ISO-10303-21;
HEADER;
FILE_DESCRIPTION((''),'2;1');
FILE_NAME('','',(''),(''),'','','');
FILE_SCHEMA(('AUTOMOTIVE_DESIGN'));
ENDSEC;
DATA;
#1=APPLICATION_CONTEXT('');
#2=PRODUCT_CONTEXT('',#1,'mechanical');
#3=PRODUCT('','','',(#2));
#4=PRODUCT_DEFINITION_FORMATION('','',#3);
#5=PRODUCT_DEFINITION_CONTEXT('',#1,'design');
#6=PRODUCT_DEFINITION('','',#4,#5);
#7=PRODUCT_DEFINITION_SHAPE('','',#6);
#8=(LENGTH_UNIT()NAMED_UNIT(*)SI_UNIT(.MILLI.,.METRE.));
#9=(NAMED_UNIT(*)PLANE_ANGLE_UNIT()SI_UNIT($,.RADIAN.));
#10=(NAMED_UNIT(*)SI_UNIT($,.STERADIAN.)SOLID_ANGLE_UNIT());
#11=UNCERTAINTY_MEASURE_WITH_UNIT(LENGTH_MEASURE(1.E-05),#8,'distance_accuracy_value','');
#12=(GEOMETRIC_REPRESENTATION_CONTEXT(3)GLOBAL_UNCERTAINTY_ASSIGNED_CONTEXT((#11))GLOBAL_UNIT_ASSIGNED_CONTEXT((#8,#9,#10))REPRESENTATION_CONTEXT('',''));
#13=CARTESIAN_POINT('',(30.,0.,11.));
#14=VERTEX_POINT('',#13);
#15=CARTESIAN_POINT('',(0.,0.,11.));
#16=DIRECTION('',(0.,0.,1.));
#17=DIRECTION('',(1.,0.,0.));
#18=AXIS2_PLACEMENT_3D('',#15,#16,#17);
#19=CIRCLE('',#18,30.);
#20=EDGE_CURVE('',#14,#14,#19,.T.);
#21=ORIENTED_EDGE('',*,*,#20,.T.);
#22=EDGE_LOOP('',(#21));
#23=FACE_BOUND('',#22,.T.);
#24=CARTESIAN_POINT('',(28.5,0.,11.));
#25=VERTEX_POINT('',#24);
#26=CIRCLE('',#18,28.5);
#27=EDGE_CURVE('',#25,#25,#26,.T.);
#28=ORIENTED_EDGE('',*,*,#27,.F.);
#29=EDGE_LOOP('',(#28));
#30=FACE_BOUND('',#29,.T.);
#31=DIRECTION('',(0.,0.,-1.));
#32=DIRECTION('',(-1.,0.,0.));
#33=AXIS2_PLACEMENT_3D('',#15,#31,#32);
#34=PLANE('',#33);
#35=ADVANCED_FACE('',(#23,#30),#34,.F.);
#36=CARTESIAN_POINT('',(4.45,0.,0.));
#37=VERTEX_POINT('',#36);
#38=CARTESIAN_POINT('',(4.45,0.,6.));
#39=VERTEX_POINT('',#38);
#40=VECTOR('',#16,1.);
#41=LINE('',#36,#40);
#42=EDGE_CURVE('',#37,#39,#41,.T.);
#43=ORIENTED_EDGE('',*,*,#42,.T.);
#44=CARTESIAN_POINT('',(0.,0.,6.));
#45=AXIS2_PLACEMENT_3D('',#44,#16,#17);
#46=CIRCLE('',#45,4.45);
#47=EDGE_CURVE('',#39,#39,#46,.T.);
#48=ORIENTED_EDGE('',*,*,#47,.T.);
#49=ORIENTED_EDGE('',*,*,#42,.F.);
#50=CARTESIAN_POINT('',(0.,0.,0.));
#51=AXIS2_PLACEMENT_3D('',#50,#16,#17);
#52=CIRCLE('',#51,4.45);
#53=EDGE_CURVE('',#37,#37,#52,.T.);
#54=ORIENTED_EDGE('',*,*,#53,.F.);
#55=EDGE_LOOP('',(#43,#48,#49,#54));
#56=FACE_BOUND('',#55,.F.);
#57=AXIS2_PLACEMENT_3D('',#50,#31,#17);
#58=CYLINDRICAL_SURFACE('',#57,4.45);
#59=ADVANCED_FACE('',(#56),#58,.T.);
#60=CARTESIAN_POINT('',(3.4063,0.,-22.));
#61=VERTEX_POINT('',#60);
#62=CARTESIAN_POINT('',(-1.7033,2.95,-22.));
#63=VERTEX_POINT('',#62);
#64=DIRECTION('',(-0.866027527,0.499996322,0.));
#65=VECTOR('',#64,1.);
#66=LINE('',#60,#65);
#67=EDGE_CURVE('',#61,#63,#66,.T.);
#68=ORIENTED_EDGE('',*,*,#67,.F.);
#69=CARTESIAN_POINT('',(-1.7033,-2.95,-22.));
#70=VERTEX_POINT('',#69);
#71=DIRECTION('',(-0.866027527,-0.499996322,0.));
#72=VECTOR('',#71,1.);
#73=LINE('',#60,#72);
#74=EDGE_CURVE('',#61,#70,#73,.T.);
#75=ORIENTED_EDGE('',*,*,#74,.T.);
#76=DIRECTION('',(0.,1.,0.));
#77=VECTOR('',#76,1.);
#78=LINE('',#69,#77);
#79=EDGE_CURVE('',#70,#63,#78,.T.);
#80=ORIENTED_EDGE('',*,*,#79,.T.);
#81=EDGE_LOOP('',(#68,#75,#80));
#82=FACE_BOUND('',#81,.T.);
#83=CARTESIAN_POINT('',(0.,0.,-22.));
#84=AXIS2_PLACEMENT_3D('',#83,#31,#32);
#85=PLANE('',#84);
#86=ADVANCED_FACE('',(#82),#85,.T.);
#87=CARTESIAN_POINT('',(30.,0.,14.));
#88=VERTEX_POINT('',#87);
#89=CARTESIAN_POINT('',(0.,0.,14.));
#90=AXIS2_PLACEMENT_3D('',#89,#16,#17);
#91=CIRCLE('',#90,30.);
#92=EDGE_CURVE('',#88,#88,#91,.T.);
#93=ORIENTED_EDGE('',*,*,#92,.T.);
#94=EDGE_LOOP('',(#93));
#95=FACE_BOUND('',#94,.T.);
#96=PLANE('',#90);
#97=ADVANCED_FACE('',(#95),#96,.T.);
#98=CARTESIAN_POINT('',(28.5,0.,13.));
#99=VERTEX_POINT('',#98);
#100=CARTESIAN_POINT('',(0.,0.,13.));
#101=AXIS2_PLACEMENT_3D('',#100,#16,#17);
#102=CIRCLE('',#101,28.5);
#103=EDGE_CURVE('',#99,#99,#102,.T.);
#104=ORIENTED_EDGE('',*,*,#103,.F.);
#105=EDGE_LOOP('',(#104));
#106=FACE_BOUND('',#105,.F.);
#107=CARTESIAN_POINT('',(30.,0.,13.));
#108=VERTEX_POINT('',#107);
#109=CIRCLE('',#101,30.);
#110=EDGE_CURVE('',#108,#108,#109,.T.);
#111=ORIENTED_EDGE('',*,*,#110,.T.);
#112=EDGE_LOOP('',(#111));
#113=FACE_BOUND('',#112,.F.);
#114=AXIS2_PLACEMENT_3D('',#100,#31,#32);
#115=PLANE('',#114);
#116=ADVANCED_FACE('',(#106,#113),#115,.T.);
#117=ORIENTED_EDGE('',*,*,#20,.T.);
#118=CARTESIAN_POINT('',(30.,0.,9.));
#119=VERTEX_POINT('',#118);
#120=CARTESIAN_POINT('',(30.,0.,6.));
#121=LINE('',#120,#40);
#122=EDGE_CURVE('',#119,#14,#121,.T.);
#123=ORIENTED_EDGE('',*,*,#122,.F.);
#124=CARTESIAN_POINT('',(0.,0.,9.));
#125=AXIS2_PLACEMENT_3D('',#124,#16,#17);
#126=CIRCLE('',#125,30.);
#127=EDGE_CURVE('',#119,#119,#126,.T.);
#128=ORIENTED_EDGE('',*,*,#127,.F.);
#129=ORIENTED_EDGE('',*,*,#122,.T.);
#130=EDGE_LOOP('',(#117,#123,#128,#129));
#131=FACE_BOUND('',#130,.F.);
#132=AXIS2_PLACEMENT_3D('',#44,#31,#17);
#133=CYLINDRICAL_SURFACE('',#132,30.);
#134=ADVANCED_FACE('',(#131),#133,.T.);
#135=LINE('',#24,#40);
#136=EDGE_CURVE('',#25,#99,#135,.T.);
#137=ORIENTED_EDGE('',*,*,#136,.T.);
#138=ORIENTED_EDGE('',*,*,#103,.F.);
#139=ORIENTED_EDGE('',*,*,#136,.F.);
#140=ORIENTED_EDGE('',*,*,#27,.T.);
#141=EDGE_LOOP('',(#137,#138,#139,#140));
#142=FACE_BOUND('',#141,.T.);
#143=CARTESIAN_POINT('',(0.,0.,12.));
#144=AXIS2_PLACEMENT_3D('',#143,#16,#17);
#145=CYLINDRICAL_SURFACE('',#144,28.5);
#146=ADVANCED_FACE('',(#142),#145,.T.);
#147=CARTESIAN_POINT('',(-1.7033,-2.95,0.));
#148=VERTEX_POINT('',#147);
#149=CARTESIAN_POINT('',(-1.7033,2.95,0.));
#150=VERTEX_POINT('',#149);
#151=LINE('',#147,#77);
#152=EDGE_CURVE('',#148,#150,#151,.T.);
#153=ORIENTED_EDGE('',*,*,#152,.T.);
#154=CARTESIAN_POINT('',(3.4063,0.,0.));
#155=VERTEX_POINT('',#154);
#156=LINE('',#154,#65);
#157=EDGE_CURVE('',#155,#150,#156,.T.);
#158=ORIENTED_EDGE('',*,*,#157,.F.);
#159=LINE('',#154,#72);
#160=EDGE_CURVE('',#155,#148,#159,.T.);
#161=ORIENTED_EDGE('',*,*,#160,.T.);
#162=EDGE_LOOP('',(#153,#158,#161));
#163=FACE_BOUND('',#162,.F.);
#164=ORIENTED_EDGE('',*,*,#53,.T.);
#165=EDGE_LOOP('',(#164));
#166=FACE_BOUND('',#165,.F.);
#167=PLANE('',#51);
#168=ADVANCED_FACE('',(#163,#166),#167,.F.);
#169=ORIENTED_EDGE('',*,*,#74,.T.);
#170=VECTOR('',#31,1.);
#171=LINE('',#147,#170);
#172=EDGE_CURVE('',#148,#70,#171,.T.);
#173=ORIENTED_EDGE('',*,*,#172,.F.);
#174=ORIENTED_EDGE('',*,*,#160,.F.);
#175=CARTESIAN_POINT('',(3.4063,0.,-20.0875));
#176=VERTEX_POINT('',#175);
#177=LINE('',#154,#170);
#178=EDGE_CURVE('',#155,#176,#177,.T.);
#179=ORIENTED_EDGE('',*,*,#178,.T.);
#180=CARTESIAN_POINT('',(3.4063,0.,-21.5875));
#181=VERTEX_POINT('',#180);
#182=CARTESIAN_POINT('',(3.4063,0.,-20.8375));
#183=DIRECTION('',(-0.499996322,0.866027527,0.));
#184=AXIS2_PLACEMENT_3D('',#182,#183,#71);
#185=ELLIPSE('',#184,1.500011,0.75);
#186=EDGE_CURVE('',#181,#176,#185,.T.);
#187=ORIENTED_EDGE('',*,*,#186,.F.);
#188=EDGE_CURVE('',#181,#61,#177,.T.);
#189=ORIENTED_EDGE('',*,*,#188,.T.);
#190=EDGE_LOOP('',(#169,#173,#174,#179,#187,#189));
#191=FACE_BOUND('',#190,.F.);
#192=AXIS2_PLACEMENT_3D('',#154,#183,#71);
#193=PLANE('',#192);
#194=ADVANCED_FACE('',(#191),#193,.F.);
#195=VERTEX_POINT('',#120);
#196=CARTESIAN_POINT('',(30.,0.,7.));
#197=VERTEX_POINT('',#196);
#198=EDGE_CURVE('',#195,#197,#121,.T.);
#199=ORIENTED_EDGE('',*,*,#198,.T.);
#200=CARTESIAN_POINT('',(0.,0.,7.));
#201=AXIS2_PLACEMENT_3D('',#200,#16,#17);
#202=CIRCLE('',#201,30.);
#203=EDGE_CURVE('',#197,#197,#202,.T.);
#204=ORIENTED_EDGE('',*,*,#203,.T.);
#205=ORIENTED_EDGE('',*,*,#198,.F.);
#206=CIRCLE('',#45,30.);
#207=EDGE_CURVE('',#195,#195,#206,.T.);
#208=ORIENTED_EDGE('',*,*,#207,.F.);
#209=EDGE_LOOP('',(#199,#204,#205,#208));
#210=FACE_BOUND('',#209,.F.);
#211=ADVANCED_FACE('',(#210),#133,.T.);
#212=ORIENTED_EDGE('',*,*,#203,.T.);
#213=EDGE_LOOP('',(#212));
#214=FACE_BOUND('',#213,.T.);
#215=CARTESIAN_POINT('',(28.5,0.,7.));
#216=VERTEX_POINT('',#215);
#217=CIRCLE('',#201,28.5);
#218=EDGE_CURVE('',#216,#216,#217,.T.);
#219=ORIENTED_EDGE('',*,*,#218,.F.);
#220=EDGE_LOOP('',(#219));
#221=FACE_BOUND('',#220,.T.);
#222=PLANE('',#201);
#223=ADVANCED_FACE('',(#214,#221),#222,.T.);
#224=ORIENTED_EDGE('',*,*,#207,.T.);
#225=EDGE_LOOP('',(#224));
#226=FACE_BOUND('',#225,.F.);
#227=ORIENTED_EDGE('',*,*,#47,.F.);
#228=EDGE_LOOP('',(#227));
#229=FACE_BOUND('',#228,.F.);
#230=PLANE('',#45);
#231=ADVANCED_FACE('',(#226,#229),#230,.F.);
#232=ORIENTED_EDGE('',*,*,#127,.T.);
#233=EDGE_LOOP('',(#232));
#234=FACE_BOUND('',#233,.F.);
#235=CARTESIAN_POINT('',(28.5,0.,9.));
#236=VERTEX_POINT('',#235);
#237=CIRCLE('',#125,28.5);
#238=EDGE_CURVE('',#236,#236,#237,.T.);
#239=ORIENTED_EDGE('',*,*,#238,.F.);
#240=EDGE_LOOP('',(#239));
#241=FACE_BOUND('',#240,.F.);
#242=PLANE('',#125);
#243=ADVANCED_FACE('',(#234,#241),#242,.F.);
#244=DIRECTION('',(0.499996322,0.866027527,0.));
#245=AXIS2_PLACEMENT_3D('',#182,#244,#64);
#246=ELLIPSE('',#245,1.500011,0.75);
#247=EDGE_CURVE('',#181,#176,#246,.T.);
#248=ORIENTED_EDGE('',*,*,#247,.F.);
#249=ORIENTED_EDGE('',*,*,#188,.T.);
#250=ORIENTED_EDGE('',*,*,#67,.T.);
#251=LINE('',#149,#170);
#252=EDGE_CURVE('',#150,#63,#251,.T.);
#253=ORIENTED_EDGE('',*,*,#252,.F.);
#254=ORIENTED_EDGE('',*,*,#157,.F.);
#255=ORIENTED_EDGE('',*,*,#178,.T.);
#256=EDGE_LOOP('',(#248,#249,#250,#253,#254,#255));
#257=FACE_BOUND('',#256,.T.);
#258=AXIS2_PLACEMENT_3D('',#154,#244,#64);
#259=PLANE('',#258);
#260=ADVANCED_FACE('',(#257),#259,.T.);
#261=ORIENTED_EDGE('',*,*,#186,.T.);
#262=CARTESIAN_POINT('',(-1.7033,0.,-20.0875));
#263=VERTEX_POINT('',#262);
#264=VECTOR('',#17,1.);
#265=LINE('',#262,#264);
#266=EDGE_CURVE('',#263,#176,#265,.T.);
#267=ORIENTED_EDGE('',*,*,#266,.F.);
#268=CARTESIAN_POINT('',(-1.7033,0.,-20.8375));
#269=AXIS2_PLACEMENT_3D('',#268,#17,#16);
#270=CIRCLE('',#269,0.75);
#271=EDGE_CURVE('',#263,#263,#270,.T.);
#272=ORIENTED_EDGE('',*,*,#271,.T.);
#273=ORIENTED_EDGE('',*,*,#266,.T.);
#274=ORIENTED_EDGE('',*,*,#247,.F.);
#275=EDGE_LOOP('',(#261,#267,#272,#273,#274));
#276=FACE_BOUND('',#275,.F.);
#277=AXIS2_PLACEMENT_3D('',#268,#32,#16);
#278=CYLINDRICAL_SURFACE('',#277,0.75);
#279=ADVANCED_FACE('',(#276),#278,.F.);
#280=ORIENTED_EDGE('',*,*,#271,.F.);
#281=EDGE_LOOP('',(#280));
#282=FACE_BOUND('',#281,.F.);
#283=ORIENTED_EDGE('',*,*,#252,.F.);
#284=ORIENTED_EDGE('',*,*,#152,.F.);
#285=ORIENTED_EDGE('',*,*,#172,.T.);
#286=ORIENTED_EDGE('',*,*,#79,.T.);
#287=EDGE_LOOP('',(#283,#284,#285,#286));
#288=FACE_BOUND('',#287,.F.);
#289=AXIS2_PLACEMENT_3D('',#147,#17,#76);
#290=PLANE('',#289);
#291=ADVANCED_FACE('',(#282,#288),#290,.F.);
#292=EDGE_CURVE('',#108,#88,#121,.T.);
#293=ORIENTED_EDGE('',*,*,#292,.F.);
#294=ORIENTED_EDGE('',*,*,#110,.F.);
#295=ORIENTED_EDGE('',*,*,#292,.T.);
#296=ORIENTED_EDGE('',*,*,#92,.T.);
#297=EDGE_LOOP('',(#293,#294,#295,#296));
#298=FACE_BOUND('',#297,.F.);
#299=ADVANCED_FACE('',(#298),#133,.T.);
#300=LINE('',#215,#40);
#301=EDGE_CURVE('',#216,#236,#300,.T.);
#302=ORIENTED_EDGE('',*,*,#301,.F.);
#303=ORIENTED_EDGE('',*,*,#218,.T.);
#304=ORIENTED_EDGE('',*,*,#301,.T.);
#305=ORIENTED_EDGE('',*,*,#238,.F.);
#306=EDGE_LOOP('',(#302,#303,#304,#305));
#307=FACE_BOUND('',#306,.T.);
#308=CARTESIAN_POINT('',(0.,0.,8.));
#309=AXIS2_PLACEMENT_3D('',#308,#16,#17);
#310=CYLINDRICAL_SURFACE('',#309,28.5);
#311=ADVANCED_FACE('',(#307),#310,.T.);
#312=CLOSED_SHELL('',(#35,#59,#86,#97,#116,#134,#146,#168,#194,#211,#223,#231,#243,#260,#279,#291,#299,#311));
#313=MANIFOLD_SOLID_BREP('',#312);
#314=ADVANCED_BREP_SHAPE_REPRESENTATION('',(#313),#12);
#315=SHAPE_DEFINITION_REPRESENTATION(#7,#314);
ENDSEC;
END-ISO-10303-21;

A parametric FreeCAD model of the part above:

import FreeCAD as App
import Part
import Sketcher


def add_polygon(sketch, points):
    """Adds a closed chain of lines whose ends are joined by coincident constraints."""
    first, n = sketch.GeometryCount, len(points)
    for a, b in zip(points, points[1:] + points[:1]):
        sketch.addGeometry(Part.LineSegment(App.Vector(*a, 0), App.Vector(*b, 0)), False)
    for i in range(n):
        sketch.addConstraint(Sketcher.Constraint("Coincident", first + i, 2, first + (i + 1) % n, 1))

doc = App.newDocument("Part")
body = doc.addObject("PartDesign::Body", "Body")

sketch1 = body.newObject("Sketcher::SketchObject", "Sketch")
sketch1.AttachmentSupport = (doc.getObject("XY_Plane"), [""])
sketch1.MapMode = "FlatFace"
sketch1.addGeometry(Part.Circle(App.Vector(0, 0, 0), App.Vector(0, 0, 1), 4.45), False)
sketch1.addConstraint(Sketcher.Constraint("Coincident", 0, 3, -1, 1))
sketch1.addConstraint(Sketcher.Constraint("Diameter", 0, 8.9))
pad1 = body.newObject("PartDesign::Pad", "Pad")
pad1.Profile = sketch1
pad1.Length = 6

sketch2 = body.newObject("Sketcher::SketchObject", "Sketch001")
sketch2.AttachmentSupport = (doc.getObject("XY_Plane"), [""])
sketch2.MapMode = "FlatFace"
sketch2.AttachmentOffset = App.Placement(App.Vector(0, 0, 6), App.Rotation())
sketch2.addGeometry(Part.Circle(App.Vector(0, 0, 0), App.Vector(0, 0, 1), 30), False)
sketch2.addConstraint(Sketcher.Constraint("Coincident", 0, 3, -1, 1))
sketch2.addConstraint(Sketcher.Constraint("Diameter", 0, 60.0))
pad2 = body.newObject("PartDesign::Pad", "Pad001")
pad2.Profile = sketch2
pad2.Length = 8

sketch3 = body.newObject("Sketcher::SketchObject", "Sketch002")
sketch3.AttachmentSupport = (doc.getObject("XY_Plane"), [""])
sketch3.MapMode = "FlatFace"
sketch3.AttachmentOffset = App.Placement(App.Vector(0, 0, 8), App.Rotation())
sketch3.addGeometry(Part.Circle(App.Vector(0, 0, 0), App.Vector(0, 0, 1), 30), False)
sketch3.addGeometry(Part.Circle(App.Vector(0, 0, 0), App.Vector(0, 0, 1), 28.5), False)
sketch3.addConstraint(Sketcher.Constraint("Coincident", 0, 3, -1, 1))
sketch3.addConstraint(Sketcher.Constraint("Coincident", 1, 3, -1, 1))
sketch3.addConstraint(Sketcher.Constraint("Diameter", 0, 60.0))
sketch3.addConstraint(Sketcher.Constraint("Diameter", 1, 57.0))
pocket1 = body.newObject("PartDesign::Pocket", "Pocket")
pocket1.Profile = sketch3
pocket1.Length = 2
pocket1.Midplane = True
doc.recompute()

datumplane = body.newObject("PartDesign::Plane", "DatumPlane")
datumplane.AttachmentSupport = (doc.getObject("XY_Plane"), [""])
datumplane.MapMode = "FlatFace"
datumplane.AttachmentOffset = App.Placement(App.Vector(0, 0, 10), App.Rotation())
mirrored = body.newObject("PartDesign::Mirrored", "Mirrored")
mirrored.Originals = [pocket1]
mirrored.MirrorPlane = (datumplane, [""])
body.Tip = mirrored

sketch4 = body.newObject("Sketcher::SketchObject", "Sketch003")
sketch4.AttachmentSupport = (doc.getObject("XY_Plane"), [""])
sketch4.MapMode = "FlatFace"
add_polygon(sketch4, [(-1.7033, 2.95), (3.4063, 0), (-1.7033, -2.95)])
sketch4.addConstraint(Sketcher.Constraint("Vertical", 2))
sketch4.addConstraint(Sketcher.Constraint("PointOnObject", 0, 2, -1))
sketch4.addConstraint(Sketcher.Constraint("Equal", 0, 1))
sketch4.addConstraint(Sketcher.Constraint("DistanceY", 2, 1, 2, 2, 5.9))
sketch4.addConstraint(Sketcher.Constraint("Distance", 0, 5.9))
sketch4.addConstraint(Sketcher.Constraint("DistanceX", -1, 1, 0, 2, 3.4063))
pad3 = body.newObject("PartDesign::Pad", "Pad002")
pad3.Profile = sketch4
pad3.Length = 22
pad3.Reversed = True

sketch5 = body.newObject("Sketcher::SketchObject", "Sketch004")
sketch5.AttachmentSupport = (doc.getObject("YZ_Plane"), [""])
sketch5.MapMode = "FlatFace"
sketch5.AttachmentOffset = App.Placement(App.Vector(0, 0, -1.7033), App.Rotation())
sketch5.addGeometry(Part.Circle(App.Vector(0, -20.8375, 0), App.Vector(0, 0, 1), 0.75), False)
sketch5.addConstraint(Sketcher.Constraint("PointOnObject", 0, 3, -2))
sketch5.addConstraint(Sketcher.Constraint("Diameter", 0, 1.5))
sketch5.addConstraint(Sketcher.Constraint("DistanceY", 0, 3, -1, 1, 20.8375))
pocket2 = body.newObject("PartDesign::Pocket", "Pocket001")
pocket2.Profile = sketch5
pocket2.Length = 12
pocket2.Reversed = True

doc.recompute()
